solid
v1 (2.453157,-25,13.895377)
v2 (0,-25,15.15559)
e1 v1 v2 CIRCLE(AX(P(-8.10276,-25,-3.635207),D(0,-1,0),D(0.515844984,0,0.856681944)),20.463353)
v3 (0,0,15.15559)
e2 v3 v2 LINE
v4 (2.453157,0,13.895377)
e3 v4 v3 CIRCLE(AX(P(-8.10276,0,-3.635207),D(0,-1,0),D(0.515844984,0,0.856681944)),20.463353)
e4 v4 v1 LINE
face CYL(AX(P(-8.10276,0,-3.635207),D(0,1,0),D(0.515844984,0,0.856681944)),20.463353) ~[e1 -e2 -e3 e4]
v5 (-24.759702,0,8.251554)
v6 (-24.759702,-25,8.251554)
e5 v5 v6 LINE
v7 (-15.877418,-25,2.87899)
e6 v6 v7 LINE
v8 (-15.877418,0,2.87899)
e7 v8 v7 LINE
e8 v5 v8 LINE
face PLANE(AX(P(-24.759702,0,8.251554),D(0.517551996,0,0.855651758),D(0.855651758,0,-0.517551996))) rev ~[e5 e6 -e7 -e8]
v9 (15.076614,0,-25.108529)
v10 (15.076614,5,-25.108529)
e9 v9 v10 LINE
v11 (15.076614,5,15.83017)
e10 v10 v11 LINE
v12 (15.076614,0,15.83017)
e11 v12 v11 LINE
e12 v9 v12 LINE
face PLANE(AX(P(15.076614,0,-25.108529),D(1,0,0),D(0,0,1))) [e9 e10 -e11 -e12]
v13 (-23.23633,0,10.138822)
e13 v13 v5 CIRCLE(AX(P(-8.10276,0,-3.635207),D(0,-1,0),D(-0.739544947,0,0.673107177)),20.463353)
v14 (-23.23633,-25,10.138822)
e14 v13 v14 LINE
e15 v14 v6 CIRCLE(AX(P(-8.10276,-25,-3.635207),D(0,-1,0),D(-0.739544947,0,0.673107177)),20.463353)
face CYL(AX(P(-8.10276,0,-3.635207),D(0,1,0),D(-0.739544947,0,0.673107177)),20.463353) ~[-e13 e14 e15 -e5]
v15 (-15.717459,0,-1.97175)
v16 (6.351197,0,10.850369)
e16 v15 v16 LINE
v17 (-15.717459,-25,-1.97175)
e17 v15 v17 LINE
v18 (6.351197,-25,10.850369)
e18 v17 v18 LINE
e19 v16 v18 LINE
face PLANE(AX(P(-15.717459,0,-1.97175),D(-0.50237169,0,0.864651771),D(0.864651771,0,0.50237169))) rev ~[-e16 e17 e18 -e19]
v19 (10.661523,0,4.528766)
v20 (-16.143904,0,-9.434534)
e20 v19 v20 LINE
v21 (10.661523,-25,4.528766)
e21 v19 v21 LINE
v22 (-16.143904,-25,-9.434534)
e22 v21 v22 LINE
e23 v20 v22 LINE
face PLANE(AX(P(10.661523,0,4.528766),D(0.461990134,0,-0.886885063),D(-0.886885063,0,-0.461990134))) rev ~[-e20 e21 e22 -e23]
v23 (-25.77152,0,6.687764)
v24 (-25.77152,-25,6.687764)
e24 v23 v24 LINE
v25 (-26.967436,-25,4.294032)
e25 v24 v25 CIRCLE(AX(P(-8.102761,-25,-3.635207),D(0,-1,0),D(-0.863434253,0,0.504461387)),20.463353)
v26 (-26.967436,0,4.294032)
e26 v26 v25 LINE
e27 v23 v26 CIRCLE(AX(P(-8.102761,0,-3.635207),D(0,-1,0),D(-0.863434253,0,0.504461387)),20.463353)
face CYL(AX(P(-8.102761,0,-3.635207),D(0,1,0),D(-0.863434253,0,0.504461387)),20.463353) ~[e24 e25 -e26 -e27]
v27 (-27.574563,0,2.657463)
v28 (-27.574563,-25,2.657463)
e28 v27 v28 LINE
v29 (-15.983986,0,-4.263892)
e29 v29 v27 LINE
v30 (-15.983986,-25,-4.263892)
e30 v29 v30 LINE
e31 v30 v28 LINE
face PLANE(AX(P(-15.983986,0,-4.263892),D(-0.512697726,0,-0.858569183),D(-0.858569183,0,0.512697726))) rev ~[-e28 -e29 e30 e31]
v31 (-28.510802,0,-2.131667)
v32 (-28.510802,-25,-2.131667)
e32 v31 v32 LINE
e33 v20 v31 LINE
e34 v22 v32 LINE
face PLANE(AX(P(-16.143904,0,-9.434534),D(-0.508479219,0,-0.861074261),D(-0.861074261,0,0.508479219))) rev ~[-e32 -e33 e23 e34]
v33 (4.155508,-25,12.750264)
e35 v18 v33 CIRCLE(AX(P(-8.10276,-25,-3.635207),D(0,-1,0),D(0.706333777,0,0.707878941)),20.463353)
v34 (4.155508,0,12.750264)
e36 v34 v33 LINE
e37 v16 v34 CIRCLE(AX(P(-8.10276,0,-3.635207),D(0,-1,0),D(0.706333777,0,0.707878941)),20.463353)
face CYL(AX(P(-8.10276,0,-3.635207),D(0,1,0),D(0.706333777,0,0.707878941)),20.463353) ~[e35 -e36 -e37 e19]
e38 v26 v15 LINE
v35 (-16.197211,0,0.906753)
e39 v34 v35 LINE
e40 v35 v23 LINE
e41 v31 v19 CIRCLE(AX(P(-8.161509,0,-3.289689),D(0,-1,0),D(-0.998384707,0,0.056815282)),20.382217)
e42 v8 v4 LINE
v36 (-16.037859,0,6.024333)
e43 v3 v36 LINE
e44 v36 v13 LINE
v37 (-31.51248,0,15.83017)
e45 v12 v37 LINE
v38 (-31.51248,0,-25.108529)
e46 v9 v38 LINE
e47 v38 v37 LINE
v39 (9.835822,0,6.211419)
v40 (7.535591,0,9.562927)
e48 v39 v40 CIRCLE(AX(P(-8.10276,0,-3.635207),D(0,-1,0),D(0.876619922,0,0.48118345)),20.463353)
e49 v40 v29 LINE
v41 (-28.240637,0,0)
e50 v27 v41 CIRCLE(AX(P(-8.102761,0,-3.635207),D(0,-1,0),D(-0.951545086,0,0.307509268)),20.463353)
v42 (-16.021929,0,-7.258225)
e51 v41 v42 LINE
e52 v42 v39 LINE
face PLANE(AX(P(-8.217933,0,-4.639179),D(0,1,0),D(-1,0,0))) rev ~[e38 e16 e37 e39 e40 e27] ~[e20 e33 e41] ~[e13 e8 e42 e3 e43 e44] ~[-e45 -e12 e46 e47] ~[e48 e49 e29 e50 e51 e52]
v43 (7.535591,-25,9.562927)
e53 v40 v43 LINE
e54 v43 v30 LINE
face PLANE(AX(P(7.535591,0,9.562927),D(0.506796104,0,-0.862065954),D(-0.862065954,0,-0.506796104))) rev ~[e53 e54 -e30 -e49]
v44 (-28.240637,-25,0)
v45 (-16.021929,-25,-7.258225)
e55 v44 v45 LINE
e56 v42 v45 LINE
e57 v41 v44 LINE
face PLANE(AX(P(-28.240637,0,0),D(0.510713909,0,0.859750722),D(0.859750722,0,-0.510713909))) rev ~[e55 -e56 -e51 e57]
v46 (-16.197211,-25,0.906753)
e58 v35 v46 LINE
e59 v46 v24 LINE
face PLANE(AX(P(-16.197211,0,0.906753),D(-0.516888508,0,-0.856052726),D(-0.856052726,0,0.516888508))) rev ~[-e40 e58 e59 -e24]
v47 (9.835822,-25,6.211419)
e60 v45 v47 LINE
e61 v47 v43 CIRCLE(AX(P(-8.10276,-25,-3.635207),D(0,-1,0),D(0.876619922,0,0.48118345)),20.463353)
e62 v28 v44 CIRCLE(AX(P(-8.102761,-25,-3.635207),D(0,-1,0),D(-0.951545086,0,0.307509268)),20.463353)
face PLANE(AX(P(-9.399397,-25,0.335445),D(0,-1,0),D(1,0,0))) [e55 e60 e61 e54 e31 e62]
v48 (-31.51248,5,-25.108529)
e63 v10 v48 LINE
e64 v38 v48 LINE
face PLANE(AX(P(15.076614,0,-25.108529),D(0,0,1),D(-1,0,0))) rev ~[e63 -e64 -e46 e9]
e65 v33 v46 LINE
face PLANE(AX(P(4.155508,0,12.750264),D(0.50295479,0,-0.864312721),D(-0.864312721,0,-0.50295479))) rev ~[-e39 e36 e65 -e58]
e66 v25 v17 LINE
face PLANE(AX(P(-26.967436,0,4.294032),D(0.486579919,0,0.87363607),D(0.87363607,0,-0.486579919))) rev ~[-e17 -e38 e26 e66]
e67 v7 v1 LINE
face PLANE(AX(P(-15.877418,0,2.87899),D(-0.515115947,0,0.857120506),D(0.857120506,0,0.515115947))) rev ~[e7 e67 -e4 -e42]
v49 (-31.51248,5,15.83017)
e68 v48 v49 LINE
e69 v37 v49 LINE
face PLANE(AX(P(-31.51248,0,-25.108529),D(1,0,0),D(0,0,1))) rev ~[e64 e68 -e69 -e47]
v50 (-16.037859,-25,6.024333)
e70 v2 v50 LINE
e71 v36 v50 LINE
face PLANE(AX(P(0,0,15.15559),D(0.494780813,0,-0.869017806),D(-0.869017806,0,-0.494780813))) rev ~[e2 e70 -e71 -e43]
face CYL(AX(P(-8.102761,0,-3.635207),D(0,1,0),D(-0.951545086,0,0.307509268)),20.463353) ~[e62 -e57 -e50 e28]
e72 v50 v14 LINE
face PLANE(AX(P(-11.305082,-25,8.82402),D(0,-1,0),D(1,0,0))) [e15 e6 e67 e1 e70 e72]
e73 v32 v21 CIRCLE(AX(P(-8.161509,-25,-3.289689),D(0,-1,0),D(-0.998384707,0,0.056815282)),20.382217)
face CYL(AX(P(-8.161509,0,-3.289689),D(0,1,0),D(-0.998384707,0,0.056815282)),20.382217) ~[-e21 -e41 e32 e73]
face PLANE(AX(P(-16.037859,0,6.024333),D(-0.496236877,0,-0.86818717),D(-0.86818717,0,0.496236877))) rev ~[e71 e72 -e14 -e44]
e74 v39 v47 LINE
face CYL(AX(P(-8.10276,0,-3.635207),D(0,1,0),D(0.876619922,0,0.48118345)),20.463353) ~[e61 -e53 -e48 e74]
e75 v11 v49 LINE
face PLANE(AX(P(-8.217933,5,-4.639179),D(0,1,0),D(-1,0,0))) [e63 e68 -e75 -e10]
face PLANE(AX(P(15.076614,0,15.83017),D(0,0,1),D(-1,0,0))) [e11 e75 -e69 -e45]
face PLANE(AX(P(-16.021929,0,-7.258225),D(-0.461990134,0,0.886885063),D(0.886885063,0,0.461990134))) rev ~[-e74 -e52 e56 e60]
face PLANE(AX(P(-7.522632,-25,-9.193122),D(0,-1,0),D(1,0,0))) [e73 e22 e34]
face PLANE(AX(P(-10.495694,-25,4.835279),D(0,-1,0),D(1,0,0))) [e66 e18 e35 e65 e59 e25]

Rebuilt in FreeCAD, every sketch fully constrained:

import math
import FreeCAD as App
import Part
import Sketcher
from FreeCAD import Vector


def add_polygon(sketch, points):
    """Adds a closed chain of lines whose ends are joined by coincident constraints."""
    first, n = sketch.GeometryCount, len(points)
    for a, b in zip(points, points[1:] + points[:1]):
        sketch.addGeometry(Part.LineSegment(App.Vector(*a, 0), App.Vector(*b, 0)), False)
    for i in range(n):
        sketch.addConstraint(Sketcher.Constraint("Coincident", first + i, 2, first + (i + 1) % n, 1))

doc = App.newDocument("Part")
body = doc.addObject("PartDesign::Body", "Body")

# Sketch on XZ plane
sketch1 = doc.addObject("Sketcher::SketchObject", "Sketch")
body.addObject(sketch1)
sketch1.AttachmentSupport = (doc.XZ_Plane, [""])
sketch1.MapMode = "FlatFace"
sketch1.addGeometry(Part.LineSegment(Vector(-16.2, 0.9, 0), Vector(-25.8, 6.7, 0)), False)
sketch1.addGeometry(Part.ArcOfCircle(Part.Circle(Vector(-8.1, -3.6, 0), Vector(0, 0, 1), 20.5), math.radians(149.7), math.radians(157.2)), False)
sketch1.addGeometry(Part.LineSegment(Vector(-27, 4.3, 0), Vector(-15.7, -2, 0)), False)
sketch1.addGeometry(Part.LineSegment(Vector(-15.7, -2, 0), Vector(6.4, 10.9, 0)), False)
sketch1.addGeometry(Part.ArcOfCircle(Part.Circle(Vector(-8.1, -3.6, 0), Vector(0, 0, 1), 20.5), math.radians(45.06), math.radians(53.2)), False)
sketch1.addGeometry(Part.LineSegment(Vector(4.2, 12.8, 0), Vector(-16.2, 0.9, 0)), False)
sketch1.addConstraint(Sketcher.Constraint("Coincident", 0, 2, 1, 1))
sketch1.addConstraint(Sketcher.Constraint("Coincident", 1, 2, 2, 1))
sketch1.addConstraint(Sketcher.Constraint("Coincident", 2, 2, 3, 1))
sketch1.addConstraint(Sketcher.Constraint("Coincident", 3, 2, 4, 1))
sketch1.addConstraint(Sketcher.Constraint("Coincident", 4, 2, 5, 1))
sketch1.addConstraint(Sketcher.Constraint("Coincident", 5, 2, 0, 1))
sketch1.addConstraint(Sketcher.Constraint("Coincident", 4, 3, 1, 3))
sketch1.addConstraint(Sketcher.Constraint("Equal", 1, 4))
sketch1.addConstraint(Sketcher.Constraint("Radius", 1, 20.463353))
sketch1.addConstraint(Sketcher.Constraint("DistanceX", 2, 2, 1, 3, 7.614698))
sketch1.addConstraint(Sketcher.Constraint("DistanceY", 0, 2, 4, 2, 6.0625))
sketch1.addConstraint(Sketcher.Constraint("Distance", 0, 11.184252))
sketch1.addConstraint(Sketcher.Constraint("Distance", 2, 12.877189))
sketch1.addConstraint(Sketcher.Constraint("Distance", 3, 25.523171))
sketch1.addConstraint(Sketcher.Constraint("DistanceX", 1, 3, -1, 1, 8.102761))
sketch1.addConstraint(Sketcher.Constraint("DistanceX", 0, 2, -1, 1, 25.77152))
sketch1.addConstraint(Sketcher.Constraint("DistanceY", -1, 1, 1, 2, 4.294032))
sketch1.addConstraint(Sketcher.Constraint("DistanceY", 2, 2, -1, 1, 1.97175))
sketch1.addConstraint(Sketcher.Constraint("DistanceX", 5, 2, -1, 1, 16.197211))
pad1 = doc.addObject("PartDesign::Pad", "Pad")
body.addObject(pad1)
pad1.Profile = sketch1
pad1.Length = 25
body2 = doc.addObject("PartDesign::Body", "Body001")

# Sketch on XZ plane
sketch2 = doc.addObject("Sketcher::SketchObject", "Sketch001")
body2.addObject(sketch2)
sketch2.AttachmentSupport = (doc.getObject("XZ_Plane001"), [""])
sketch2.MapMode = "FlatFace"
sketch2.addGeometry(Part.LineSegment(Vector(-16, 6, 0), Vector(-23.2, 10.1, 0)), False)
sketch2.addGeometry(Part.ArcOfCircle(Part.Circle(Vector(-8.1, -3.6, 0), Vector(0, 0, 1), 20.5), math.radians(137.69), math.radians(144.49)), False)
sketch2.addGeometry(Part.LineSegment(Vector(-24.8, 8.3, 0), Vector(-15.9, 2.9, 0)), False)
sketch2.addGeometry(Part.LineSegment(Vector(-15.9, 2.9, 0), Vector(2.5, 13.9, 0)), False)
sketch2.addGeometry(Part.ArcOfCircle(Part.Circle(Vector(-8.1, -3.6, 0), Vector(0, 0, 1), 20.5), math.radians(58.95), math.radians(66.67)), False)
sketch2.addGeometry(Part.LineSegment(Vector(0, 15.2, 0), Vector(-16, 6, 0)), False)
sketch2.addConstraint(Sketcher.Constraint("Coincident", 0, 2, 1, 1))
sketch2.addConstraint(Sketcher.Constraint("Coincident", 1, 2, 2, 1))
sketch2.addConstraint(Sketcher.Constraint("Coincident", 2, 2, 3, 1))
sketch2.addConstraint(Sketcher.Constraint("Coincident", 3, 2, 4, 1))
sketch2.addConstraint(Sketcher.Constraint("Coincident", 4, 2, 5, 1))
sketch2.addConstraint(Sketcher.Constraint("Coincident", 5, 2, 0, 1))
sketch2.addConstraint(Sketcher.Constraint("Coincident", 4, 3, 1, 3))
sketch2.addConstraint(Sketcher.Constraint("Equal", 1, 4))
sketch2.addConstraint(Sketcher.Constraint("PointOnObject", 4, 2, -2))
sketch2.addConstraint(Sketcher.Constraint("Radius", 1, 20.463353))
sketch2.addConstraint(Sketcher.Constraint("DistanceY", 2, 2, 4, 2, 12.276601))
sketch2.addConstraint(Sketcher.Constraint("DistanceX", 5, 2, 4, 3, 7.935099))
sketch2.addConstraint(Sketcher.Constraint("Distance", 0, 8.291381))
sketch2.addConstraint(Sketcher.Constraint("Distance", 3, 21.386229))
sketch2.addConstraint(Sketcher.Constraint("DistanceX", 1, 3, -1, 1, 8.10276))
sketch2.addConstraint(Sketcher.Constraint("DistanceX", 0, 2, -1, 1, 23.23633))
sketch2.addConstraint(Sketcher.Constraint("DistanceX", 2, 2, -1, 1, 15.877418))
sketch2.addConstraint(Sketcher.Constraint("DistanceY", -1, 1, 2, 2, 2.87899))
sketch2.addConstraint(Sketcher.Constraint("DistanceY", 1, 2, 0, 2, 1.887269))
pad2 = doc.addObject("PartDesign::Pad", "Pad001")
body2.addObject(pad2)
pad2.Profile = sketch2
pad2.Length = 25
body3 = doc.addObject("PartDesign::Body", "Body002")

# Sketch on XZ plane
sketch3 = doc.addObject("Sketcher::SketchObject", "Sketch002")
body3.addObject(sketch3)
sketch3.AttachmentSupport = (doc.getObject("XZ_Plane002"), [""])
sketch3.MapMode = "FlatFace"
sketch3.addGeometry(Part.LineSegment(Vector(-16, -4.3, 0), Vector(-27.6, 2.7, 0)), False)
sketch3.addGeometry(Part.ArcOfCircle(Part.Circle(Vector(-8.1, -3.6, 0), Vector(0, 0, 1), 20.5), math.radians(162.09), math.radians(169.77)), False)
sketch3.addGeometry(Part.LineSegment(Vector(-28.2, 0, 0), Vector(-16, -7.3, 0)), False)
sketch3.addGeometry(Part.LineSegment(Vector(-16, -7.3, 0), Vector(9.8, 6.2, 0)), False)
sketch3.addGeometry(Part.ArcOfCircle(Part.Circle(Vector(-8.1, -3.6, 0), Vector(0, 0, 1), 20.5), math.radians(28.76), math.radians(40.16)), False)
sketch3.addGeometry(Part.LineSegment(Vector(7.5, 9.6, 0), Vector(-16, -4.3, 0)), False)
sketch3.addConstraint(Sketcher.Constraint("Coincident", 0, 2, 1, 1))
sketch3.addConstraint(Sketcher.Constraint("Coincident", 1, 2, 2, 1))
sketch3.addConstraint(Sketcher.Constraint("Coincident", 2, 2, 3, 1))
sketch3.addConstraint(Sketcher.Constraint("Coincident", 3, 2, 4, 1))
sketch3.addConstraint(Sketcher.Constraint("Coincident", 4, 2, 5, 1))
sketch3.addConstraint(Sketcher.Constraint("Coincident", 5, 2, 0, 1))
sketch3.addConstraint(Sketcher.Constraint("Coincident", 4, 3, 1, 3))
sketch3.addConstraint(Sketcher.Constraint("Equal", 1, 4))
sketch3.addConstraint(Sketcher.Constraint("PointOnObject", 1, 2, -1))
sketch3.addConstraint(Sketcher.Constraint("Radius", 1, 20.463353))
sketch3.addConstraint(Sketcher.Constraint("Distance", 2, 14.211919))
sketch3.addConstraint(Sketcher.Constraint("DistanceX", 1, 3, -1, 1, 8.102761))
sketch3.addConstraint(Sketcher.Constraint("DistanceX", 2, 2, -1, 1, 16.021929))
sketch3.addConstraint(Sketcher.Constraint("DistanceY", -1, 1, 3, 2, 6.211419))
sketch3.addConstraint(Sketcher.Constraint("DistanceX", -1, 1, 4, 2, 7.535591))
sketch3.addConstraint(Sketcher.Constraint("DistanceY", 1, 3, 0, 2, 6.292671))
sketch3.addConstraint(Sketcher.Constraint("DistanceX", 2, 2, 3, 2, 25.857751))
sketch3.addConstraint(Sketcher.Constraint("DistanceX", 1, 2, 5, 2, 12.25665))
sketch3.addConstraint(Sketcher.Constraint("Distance", 0, 13.499875))
pad3 = doc.addObject("PartDesign::Pad", "Pad002")
body3.addObject(pad3)
pad3.Profile = sketch3
pad3.Length = 25
body4 = doc.addObject("PartDesign::Body", "Body003")

# Sketch on XZ plane
sketch4 = doc.addObject("Sketcher::SketchObject", "Sketch003")
body4.addObject(sketch4)
sketch4.AttachmentSupport = (doc.getObject("XZ_Plane003"), [""])
sketch4.MapMode = "FlatFace"
sketch4.addGeometry(Part.LineSegment(Vector(-16, -9, 0), Vector(-29, -2, 0)), False)
sketch4.addGeometry(Part.ArcOfCircle(Part.Circle(Vector(-8, -3, 0), Vector(0, 0, 1), 20), math.radians(177), math.radians(383)), False)
sketch4.addGeometry(Part.LineSegment(Vector(11, 5, 0), Vector(-16, -9, 0)), False)
sketch4.addConstraint(Sketcher.Constraint("Coincident", 0, 2, 1, 1))
sketch4.addConstraint(Sketcher.Constraint("Coincident", 1, 2, 2, 1))
sketch4.addConstraint(Sketcher.Constraint("Coincident", 2, 2, 0, 1))
sketch4.addConstraint(Sketcher.Constraint("Radius", 1, 20.382217))
sketch4.addConstraint(Sketcher.Constraint("DistanceX", 0, 2, 2, 2, 12.366898))
sketch4.addConstraint(Sketcher.Constraint("DistanceY", 2, 2, 1, 2, 13.963301))
sketch4.addConstraint(Sketcher.Constraint("Distance", 2, 30.22424))
sketch4.addConstraint(Sketcher.Constraint("DistanceX", 1, 3, -1, 1, 8.161509))
sketch4.addConstraint(Sketcher.Constraint("DistanceY", 1, 3, -1, 1, 3.289689))
sketch4.addConstraint(Sketcher.Constraint("DistanceY", 1, 3, 0, 2, 1.158021))
pad4 = doc.addObject("PartDesign::Pad", "Pad003")
body4.addObject(pad4)
pad4.Profile = sketch4
pad4.Length = 25
body.AllowCompound = True
doc.recompute()

boolean = doc.addObject("PartDesign::Boolean", "Boolean")
body.addObject(boolean)
boolean.Type = "Fuse"
boolean.addObjects([body2])
doc.recompute()

boolean2 = doc.addObject("PartDesign::Boolean", "Boolean001")
body.addObject(boolean2)
boolean2.Type = "Fuse"
boolean2.addObjects([body3])
doc.recompute()

boolean3 = doc.addObject("PartDesign::Boolean", "Boolean002")
body.addObject(boolean3)
boolean3.Type = "Fuse"
boolean3.addObjects([body4])

# Sketch on XZ plane
sketch5 = doc.addObject("Sketcher::SketchObject", "Sketch004")
body.addObject(sketch5)
sketch5.AttachmentSupport = (doc.XZ_Plane, [""])
sketch5.MapMode = "FlatFace"
add_polygon(sketch5, [(15, 16), (15, -25), (-32, -25), (-32, 16)])  # lines 0-3
sketch5.addConstraint(Sketcher.Constraint("Vertical", 0))
sketch5.addConstraint(Sketcher.Constraint("Horizontal", 1))
sketch5.addConstraint(Sketcher.Constraint("Vertical", 2))
sketch5.addConstraint(Sketcher.Constraint("Horizontal", 3))
sketch5.addConstraint(Sketcher.Constraint("DistanceY", 0, 2, 0, 1, 40.9387))
sketch5.addConstraint(Sketcher.Constraint("DistanceX", 1, 2, 1, 1, 46.589094))
sketch5.addConstraint(Sketcher.Constraint("DistanceY", 0, 2, -1, 1, 25.108529))
sketch5.addConstraint(Sketcher.Constraint("DistanceX", 1, 2, -1, 1, 31.51248))
pad5 = doc.addObject("PartDesign::Pad", "Pad004")
body.addObject(pad5)
pad5.Profile = sketch5
pad5.Length = 5
pad5.Reversed = True

doc.recompute()
